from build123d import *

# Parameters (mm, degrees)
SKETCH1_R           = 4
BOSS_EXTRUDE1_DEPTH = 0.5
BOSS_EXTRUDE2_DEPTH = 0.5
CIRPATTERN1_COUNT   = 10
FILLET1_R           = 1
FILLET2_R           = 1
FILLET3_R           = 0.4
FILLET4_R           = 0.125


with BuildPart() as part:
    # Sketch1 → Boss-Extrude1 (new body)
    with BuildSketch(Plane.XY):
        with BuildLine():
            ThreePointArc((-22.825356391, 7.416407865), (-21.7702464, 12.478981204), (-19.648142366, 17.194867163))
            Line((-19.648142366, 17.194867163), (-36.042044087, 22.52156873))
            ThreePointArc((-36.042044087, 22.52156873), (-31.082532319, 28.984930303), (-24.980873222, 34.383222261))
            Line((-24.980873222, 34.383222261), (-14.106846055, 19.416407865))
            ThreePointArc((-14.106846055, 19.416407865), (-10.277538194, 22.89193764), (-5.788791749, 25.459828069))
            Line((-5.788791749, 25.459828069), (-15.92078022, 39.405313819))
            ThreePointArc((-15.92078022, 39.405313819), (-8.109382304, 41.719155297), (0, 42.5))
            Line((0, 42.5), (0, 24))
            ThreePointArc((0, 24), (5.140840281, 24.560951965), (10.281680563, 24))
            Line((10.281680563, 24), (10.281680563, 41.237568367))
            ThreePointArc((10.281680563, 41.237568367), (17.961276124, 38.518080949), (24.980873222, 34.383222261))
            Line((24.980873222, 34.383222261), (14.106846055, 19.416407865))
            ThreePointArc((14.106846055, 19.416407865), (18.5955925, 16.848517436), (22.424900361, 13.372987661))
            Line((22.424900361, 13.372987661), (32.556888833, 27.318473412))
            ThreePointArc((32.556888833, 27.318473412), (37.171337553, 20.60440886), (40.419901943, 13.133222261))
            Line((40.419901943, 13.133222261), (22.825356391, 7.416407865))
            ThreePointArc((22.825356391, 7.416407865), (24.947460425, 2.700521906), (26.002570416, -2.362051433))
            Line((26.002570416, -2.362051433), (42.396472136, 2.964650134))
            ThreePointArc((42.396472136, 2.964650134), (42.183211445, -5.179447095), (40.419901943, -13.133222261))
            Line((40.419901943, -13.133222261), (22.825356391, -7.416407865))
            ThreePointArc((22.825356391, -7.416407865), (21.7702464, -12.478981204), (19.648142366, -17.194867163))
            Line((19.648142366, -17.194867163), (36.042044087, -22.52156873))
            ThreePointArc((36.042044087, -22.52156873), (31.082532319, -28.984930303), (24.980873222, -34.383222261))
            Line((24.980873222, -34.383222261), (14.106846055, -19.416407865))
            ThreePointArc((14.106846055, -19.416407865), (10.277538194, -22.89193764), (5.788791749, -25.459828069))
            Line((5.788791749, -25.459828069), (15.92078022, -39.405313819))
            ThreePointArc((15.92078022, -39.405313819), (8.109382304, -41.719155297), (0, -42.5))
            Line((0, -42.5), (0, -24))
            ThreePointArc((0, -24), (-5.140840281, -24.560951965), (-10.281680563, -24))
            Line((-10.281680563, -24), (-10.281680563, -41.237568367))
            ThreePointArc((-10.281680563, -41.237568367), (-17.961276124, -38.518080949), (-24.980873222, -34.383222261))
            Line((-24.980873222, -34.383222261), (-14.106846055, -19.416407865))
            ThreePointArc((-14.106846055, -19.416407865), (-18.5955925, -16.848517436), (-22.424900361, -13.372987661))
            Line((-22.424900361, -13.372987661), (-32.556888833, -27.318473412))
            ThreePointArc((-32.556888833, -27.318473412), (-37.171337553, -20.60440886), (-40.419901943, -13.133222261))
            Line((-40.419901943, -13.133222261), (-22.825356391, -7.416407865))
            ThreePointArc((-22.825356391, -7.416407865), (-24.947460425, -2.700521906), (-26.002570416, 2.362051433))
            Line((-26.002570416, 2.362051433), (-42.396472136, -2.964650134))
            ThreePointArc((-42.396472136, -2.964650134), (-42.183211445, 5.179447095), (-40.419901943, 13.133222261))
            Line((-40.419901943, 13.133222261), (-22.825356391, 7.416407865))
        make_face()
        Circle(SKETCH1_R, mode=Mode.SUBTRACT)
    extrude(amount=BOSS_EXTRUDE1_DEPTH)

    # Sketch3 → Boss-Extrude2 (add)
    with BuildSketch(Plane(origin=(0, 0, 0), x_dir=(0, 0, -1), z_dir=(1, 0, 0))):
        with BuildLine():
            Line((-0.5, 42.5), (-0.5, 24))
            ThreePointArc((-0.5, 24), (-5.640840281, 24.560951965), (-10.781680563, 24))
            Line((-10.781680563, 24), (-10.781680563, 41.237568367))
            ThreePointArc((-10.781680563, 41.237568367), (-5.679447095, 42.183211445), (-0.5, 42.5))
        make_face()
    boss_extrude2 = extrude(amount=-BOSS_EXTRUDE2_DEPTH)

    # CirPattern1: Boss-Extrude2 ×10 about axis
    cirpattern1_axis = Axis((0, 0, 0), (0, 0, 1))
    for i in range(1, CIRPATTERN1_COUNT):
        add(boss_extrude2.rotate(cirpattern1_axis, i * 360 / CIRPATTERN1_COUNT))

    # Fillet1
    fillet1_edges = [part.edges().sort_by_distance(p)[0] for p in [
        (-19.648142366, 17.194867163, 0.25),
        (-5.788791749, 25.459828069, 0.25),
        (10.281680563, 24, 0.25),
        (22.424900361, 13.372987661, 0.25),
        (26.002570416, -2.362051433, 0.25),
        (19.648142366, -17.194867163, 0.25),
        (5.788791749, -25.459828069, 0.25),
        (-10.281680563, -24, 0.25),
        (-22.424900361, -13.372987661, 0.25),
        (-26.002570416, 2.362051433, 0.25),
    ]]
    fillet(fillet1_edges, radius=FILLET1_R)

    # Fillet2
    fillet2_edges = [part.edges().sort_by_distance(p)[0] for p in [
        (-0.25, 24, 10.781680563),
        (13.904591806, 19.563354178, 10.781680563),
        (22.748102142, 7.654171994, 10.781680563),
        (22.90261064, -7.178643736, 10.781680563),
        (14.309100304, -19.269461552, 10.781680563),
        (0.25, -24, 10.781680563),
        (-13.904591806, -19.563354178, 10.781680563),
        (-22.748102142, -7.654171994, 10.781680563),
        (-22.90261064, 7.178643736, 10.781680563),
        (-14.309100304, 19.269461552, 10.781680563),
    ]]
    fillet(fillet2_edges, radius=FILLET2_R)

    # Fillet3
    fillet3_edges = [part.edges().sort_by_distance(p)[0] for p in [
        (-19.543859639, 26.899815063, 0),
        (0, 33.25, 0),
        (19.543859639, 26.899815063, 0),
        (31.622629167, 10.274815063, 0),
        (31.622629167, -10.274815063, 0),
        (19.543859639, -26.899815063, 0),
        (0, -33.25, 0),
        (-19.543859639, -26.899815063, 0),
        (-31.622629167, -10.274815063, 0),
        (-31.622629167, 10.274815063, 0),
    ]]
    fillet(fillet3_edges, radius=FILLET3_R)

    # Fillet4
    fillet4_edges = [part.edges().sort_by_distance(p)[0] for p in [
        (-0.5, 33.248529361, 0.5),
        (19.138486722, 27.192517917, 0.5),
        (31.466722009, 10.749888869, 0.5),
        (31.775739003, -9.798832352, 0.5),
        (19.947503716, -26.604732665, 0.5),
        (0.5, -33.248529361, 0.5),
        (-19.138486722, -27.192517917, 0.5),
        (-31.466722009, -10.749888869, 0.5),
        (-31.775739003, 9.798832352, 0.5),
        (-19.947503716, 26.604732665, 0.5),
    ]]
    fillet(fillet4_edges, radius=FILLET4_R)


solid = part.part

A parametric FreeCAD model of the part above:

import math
import FreeCAD as App
import Part
import Sketcher
from FreeCAD import Vector
Q = App.Units.Quantity


def edges_at(feature, points):
    """Names of the edges that pass closest to the given points."""
    edges = feature.Shape.Edges
    near = lambda p: min(range(len(edges)), key=lambda i: edges[i].distToShape(Part.Vertex(*p))[0])
    return sorted({f"Edge{near(p) + 1}" for p in points})

doc = App.newDocument("Part")
body = doc.addObject("PartDesign::Body", "Body")

# Sketch on XY plane
sketch1 = body.newObject("Sketcher::SketchObject", "Sketch")
sketch1.AttachmentSupport = (doc.getObject("XY_Plane"), [""])
sketch1.MapMode = "FlatFace"
sketch1.addGeometry([
    Part.ArcOfCircle(Part.Circle(Vector(0.9, 5.1, 0), Vector(0, 0, 1), 23.8), math.radians(150), math.radians(174)),  # 0
    Part.LineSegment(Vector(-22.8, 7.4, 0), Vector(-40.4, 13.1, 0)),  # 1
    Part.ArcOfCircle(Part.Circle(Vector(0, 0, 0), Vector(0, 0, 1), 42.5), math.radians(162), math.radians(184)),  # 2
    Part.LineSegment(Vector(-42.4, -3, 0), Vector(-26, 2.4, 0)),  # 3
    Part.ArcOfCircle(Part.Circle(Vector(-2.3, 4.7, 0), Vector(0, 0, 1), 23.8), math.radians(-174), math.radians(-150)),  # 4
    Part.LineSegment(Vector(-22.8, -7.4, 0), Vector(-40.4, -13.1, 0)),  # 5
    Part.ArcOfCircle(Part.Circle(Vector(0, 0, 0), Vector(0, 0, 1), 42.5), math.radians(-162), math.radians(-140)),  # 6
    Part.LineSegment(Vector(-32.6, -27.3, 0), Vector(-22.4, -13.4, 0)),  # 7
    Part.ArcOfCircle(Part.Circle(Vector(-4.6, 2.4, 0), Vector(0, 0, 1), 23.8), math.radians(-138), math.radians(-114)),  # 8
    Part.LineSegment(Vector(-14.1, -19.4, 0), Vector(-25, -34.4, 0)),  # 9
    Part.ArcOfCircle(Part.Circle(Vector(0, 0, 0), Vector(0, 0, 1), 42.5), math.radians(-126), math.radians(-104)),  # 10
    Part.LineSegment(Vector(-10.3, -41.2, 0), Vector(-10.3, -24, 0)),  # 11
    Part.ArcOfCircle(Part.Circle(Vector(-5.1, -0.7, 0), Vector(0, 0, 1), 23.8), math.radians(-102), math.radians(-78)),  # 12
    Part.LineSegment(Vector(0, -24, 0), Vector(0, -42.5, 0)),  # 13
    Part.ArcOfCircle(Part.Circle(Vector(0, 0, 0), Vector(0, 0, 1), 42.5), math.radians(-90), math.radians(-68)),  # 14
    Part.LineSegment(Vector(15.9, -39.4, 0), Vector(5.8, -25.5, 0)),  # 15
    Part.ArcOfCircle(Part.Circle(Vector(-3.7, -3.6, 0), Vector(0, 0, 1), 23.8), math.radians(-66), math.radians(-42)),  # 16
    Part.LineSegment(Vector(14.1, -19.4, 0), Vector(25, -34.4, 0)),  # 17
    Part.ArcOfCircle(Part.Circle(Vector(0, 0, 0), Vector(0, 0, 1), 42.5), math.radians(-54), math.radians(-32)),  # 18
    Part.LineSegment(Vector(36, -22.5, 0), Vector(19.6, -17.2, 0)),  # 19
    Part.ArcOfCircle(Part.Circle(Vector(-0.9, -5.1, 0), Vector(0, 0, 1), 23.8), math.radians(-30), math.radians(-6)),  # 20
    Part.LineSegment(Vector(22.8, -7.4, 0), Vector(40.4, -13.1, 0)),  # 21
    Part.ArcOfCircle(Part.Circle(Vector(0, 0, 0), Vector(0, 0, 1), 42.5), math.radians(-18), math.radians(4)),  # 22
    Part.LineSegment(Vector(42.4, 3, 0), Vector(26, -2.4, 0)),  # 23
    Part.ArcOfCircle(Part.Circle(Vector(2.3, -4.7, 0), Vector(0, 0, 1), 23.8), math.radians(6), math.radians(30)),  # 24
    Part.LineSegment(Vector(22.8, 7.4, 0), Vector(40.4, 13.1, 0)),  # 25
    Part.ArcOfCircle(Part.Circle(Vector(0, 0, 0), Vector(0, 0, 1), 42.5), math.radians(18), math.radians(40)),  # 26
    Part.LineSegment(Vector(32.6, 27.3, 0), Vector(22.4, 13.4, 0)),  # 27
    Part.ArcOfCircle(Part.Circle(Vector(4.6, -2.4, 0), Vector(0, 0, 1), 23.8), math.radians(42), math.radians(66)),  # 28
    Part.LineSegment(Vector(14.1, 19.4, 0), Vector(25, 34.4, 0)),  # 29
    Part.ArcOfCircle(Part.Circle(Vector(0, 0, 0), Vector(0, 0, 1), 42.5), math.radians(54), math.radians(76)),  # 30
    Part.LineSegment(Vector(10.3, 41.2, 0), Vector(10.3, 24, 0)),  # 31
    Part.ArcOfCircle(Part.Circle(Vector(5.1, 0.7, 0), Vector(0, 0, 1), 23.8), math.radians(78), math.radians(102)),  # 32
    Part.LineSegment(Vector(0, 24, 0), Vector(0, 42.5, 0)),  # 33
    Part.ArcOfCircle(Part.Circle(Vector(0, 0, 0), Vector(0, 0, 1), 42.5), math.radians(90), math.radians(112)),  # 34
    Part.LineSegment(Vector(-15.9, 39.4, 0), Vector(-5.8, 25.5, 0)),  # 35
    Part.ArcOfCircle(Part.Circle(Vector(3.7, 3.6, 0), Vector(0, 0, 1), 23.8), math.radians(114), math.radians(138)),  # 36
    Part.LineSegment(Vector(-14.1, 19.4, 0), Vector(-25, 34.4, 0)),  # 37
    Part.ArcOfCircle(Part.Circle(Vector(0, 0, 0), Vector(0, 0, 1), 42.5), math.radians(126), math.radians(148)),  # 38
    Part.LineSegment(Vector(-36, 22.5, 0), Vector(-19.6, 17.2, 0)),  # 39
    Part.Circle(Vector(0, 0, 0), Vector(0, 0, 1), 4),  # 40
], False)
sketch1.addConstraint([
    Sketcher.Constraint("Coincident", 0, 2, 1, 1),
    Sketcher.Constraint("Coincident", 1, 2, 2, 1),
    Sketcher.Constraint("Coincident", 2, 2, 3, 1),
    Sketcher.Constraint("Coincident", 3, 2, 4, 1),
    Sketcher.Constraint("Coincident", 4, 2, 5, 1),
    Sketcher.Constraint("Coincident", 5, 2, 6, 1),
    Sketcher.Constraint("Coincident", 6, 2, 7, 1),
    Sketcher.Constraint("Coincident", 7, 2, 8, 1),
    Sketcher.Constraint("Coincident", 8, 2, 9, 1),
    Sketcher.Constraint("Coincident", 9, 2, 10, 1),
    Sketcher.Constraint("Coincident", 10, 2, 11, 1),
    Sketcher.Constraint("Coincident", 11, 2, 12, 1),
    Sketcher.Constraint("Coincident", 12, 2, 13, 1),
    Sketcher.Constraint("Coincident", 13, 2, 14, 1),
    Sketcher.Constraint("Coincident", 14, 2, 15, 1),
    Sketcher.Constraint("Coincident", 15, 2, 16, 1),
    Sketcher.Constraint("Coincident", 16, 2, 17, 1),
    Sketcher.Constraint("Coincident", 17, 2, 18, 1),
    Sketcher.Constraint("Coincident", 18, 2, 19, 1),
    Sketcher.Constraint("Coincident", 19, 2, 20, 1),
    Sketcher.Constraint("Coincident", 20, 2, 21, 1),
    Sketcher.Constraint("Coincident", 21, 2, 22, 1),
    Sketcher.Constraint("Coincident", 22, 2, 23, 1),
    Sketcher.Constraint("Coincident", 23, 2, 24, 1),
    Sketcher.Constraint("Coincident", 24, 2, 25, 1),
    Sketcher.Constraint("Coincident", 25, 2, 26, 1),
    Sketcher.Constraint("Coincident", 26, 2, 27, 1),
    Sketcher.Constraint("Coincident", 27, 2, 28, 1),
    Sketcher.Constraint("Coincident", 28, 2, 29, 1),
    Sketcher.Constraint("Coincident", 29, 2, 30, 1),
    Sketcher.Constraint("Coincident", 30, 2, 31, 1),
    Sketcher.Constraint("Coincident", 31, 2, 32, 1),
    Sketcher.Constraint("Coincident", 32, 2, 33, 1),
    Sketcher.Constraint("Coincident", 33, 2, 34, 1),
    Sketcher.Constraint("Coincident", 34, 2, 35, 1),
    Sketcher.Constraint("Coincident", 35, 2, 36, 1),
    Sketcher.Constraint("Coincident", 36, 2, 37, 1),
    Sketcher.Constraint("Coincident", 37, 2, 38, 1),
    Sketcher.Constraint("Coincident", 38, 2, 39, 1),
    Sketcher.Constraint("Coincident", 39, 2, 0, 1),
    Sketcher.Constraint("Vertical", 11),
    Sketcher.Constraint("Vertical", 13),
    Sketcher.Constraint("Vertical", 31),
    Sketcher.Constraint("Vertical", 33),
    Sketcher.Constraint("Coincident", 2, 3, -1, 1),
    Sketcher.Constraint("Coincident", 6, 3, -1, 1),
    Sketcher.Constraint("Coincident", 10, 3, -1, 1),
    Sketcher.Constraint("Coincident", 14, 3, -1, 1),
    Sketcher.Constraint("Coincident", 18, 3, -1, 1),
    Sketcher.Constraint("Coincident", 22, 3, -1, 1),
    Sketcher.Constraint("Coincident", 26, 3, -1, 1),
    Sketcher.Constraint("Coincident", 30, 3, -1, 1),
    Sketcher.Constraint("Coincident", 34, 3, -1, 1),
    Sketcher.Constraint("Coincident", 38, 3, -1, 1),
    Sketcher.Constraint("Coincident", 40, 3, -1, 1),
    Sketcher.Constraint("Equal", 0, 4),
    Sketcher.Constraint("Equal", 2, 6),
    Sketcher.Constraint("Equal", 4, 8),
    Sketcher.Constraint("Equal", 6, 10),
    Sketcher.Constraint("Equal", 8, 12),
    Sketcher.Constraint("Equal", 10, 14),
    Sketcher.Constraint("Equal", 12, 16),
    Sketcher.Constraint("Equal", 14, 18),
    Sketcher.Constraint("Equal", 16, 20),
    Sketcher.Constraint("Equal", 18, 22),
    Sketcher.Constraint("Equal", 20, 24),
    Sketcher.Constraint("Equal", 22, 26),
    Sketcher.Constraint("Equal", 24, 28),
    Sketcher.Constraint("Equal", 26, 30),
    Sketcher.Constraint("Equal", 28, 32),
    Sketcher.Constraint("Equal", 30, 34),
    Sketcher.Constraint("Equal", 32, 36),
    Sketcher.Constraint("Equal", 34, 38),
    Sketcher.Constraint("Symmetric", 0, 3, 20, 3, -1, 1),
    Sketcher.Constraint("Symmetric", 4, 3, 24, 3, -1, 1),
    Sketcher.Constraint("Symmetric", 8, 3, 28, 3, -1, 1),
    Sketcher.Constraint("Symmetric", 12, 3, 32, 3, -1, 1),
    Sketcher.Constraint("Symmetric", 16, 3, 36, 3, -1, 1),
    Sketcher.Constraint("Symmetric", 8, 2, 16, 2, -2),
    Sketcher.Constraint("Symmetric", 4, 2, 20, 2, -2),
    Sketcher.Constraint("Symmetric", 0, 2, 24, 2, -2),
    Sketcher.Constraint("Symmetric", 28, 2, 36, 2, -2),
    Sketcher.Constraint("Symmetric", 12, 2, 32, 2, -1),
    Sketcher.Constraint("Parallel", 3, 5),
    Sketcher.Constraint("Parallel", 7, 9),
    Sketcher.Constraint("Parallel", 15, 17),
    Sketcher.Constraint("Parallel", 1, 19),
    Sketcher.Constraint("Parallel", 19, 21),
    Sketcher.Constraint("Parallel", 5, 23),
    Sketcher.Constraint("Parallel", 23, 25),
    Sketcher.Constraint("Parallel", 9, 27),
    Sketcher.Constraint("Parallel", 27, 29),
    Sketcher.Constraint("Parallel", 17, 35),
    Sketcher.Constraint("Parallel", 35, 37),
    Sketcher.Constraint("Parallel", 21, 39),
    Sketcher.Constraint("Horizontal", 11, 2, 12, 2),
    Sketcher.Constraint("Horizontal", 9, 2, 17, 2),
    Sketcher.Constraint("Horizontal", 5, 2, 21, 2),
    Sketcher.Constraint("Horizontal", 31, 2, 32, 2),
    Sketcher.Constraint("Equal", 3, 7),
    Sketcher.Constraint("Equal", 5, 9),
    Sketcher.Constraint("Equal", 7, 15),
    Sketcher.Constraint("Equal", 15, 19),
    Sketcher.Constraint("Equal", 19, 23),
    Sketcher.Constraint("Equal", 23, 27),
    Sketcher.Constraint("Equal", 27, 35),
    Sketcher.Constraint("Equal", 35, 39),
    Sketcher.Constraint("Diameter", 40, Q("8 mm")),
    Sketcher.Constraint("Radius", 2, Q("42.5 mm")),
    Sketcher.Constraint("Angle", 1, Q("162 deg")),
    Sketcher.Constraint("Angle", 7, Q("54 deg")),
    Sketcher.Constraint("DistanceY", 13, 2, 13, 1, Q("18.5 mm")),
    Sketcher.Constraint("Distance", 1, Q("18.5 mm")),
    Sketcher.Constraint("Radius", 0, Q("23.837073 mm")),
    Sketcher.Constraint("DistanceY", 11, 1, 11, 2, Q("17.237568 mm")),
    Sketcher.Constraint("DistanceX", 1, 2, -1, 1, Q("40.419902 mm")),
    Sketcher.Constraint("DistanceX", 7, 2, -1, 1, Q("22.4249 mm")),
    Sketcher.Constraint("Distance", 3, Q("17.237568 mm")),
    Sketcher.Constraint("DistanceY", -1, 1, 0, 3, Q("5.112921 mm")),
    Sketcher.Constraint("DistanceY", -1, 1, 4, 3, Q("4.665539 mm")),
    Sketcher.Constraint("DistanceY", -1, 1, 8, 3, Q("2.43608 mm")),
    Sketcher.Constraint("DistanceX", 16, 3, -1, 1, Q("3.733542 mm")),
])
pad1 = body.newObject("PartDesign::Pad", "Pad")
pad1.Profile = sketch1
pad1.Length = 0.5

# Sketch on YZ plane
sketch2 = body.newObject("Sketcher::SketchObject", "Sketch001")
sketch2.AttachmentSupport = (doc.getObject("YZ_Plane"), [""])
sketch2.MapMode = "FlatFace"
sketch2.addGeometry([
    Part.LineSegment(Vector(24, 0, 0), Vector(42, 0, 0)),
    Part.ArcOfCircle(Part.Circle(Vector(0, 1, 0), Vector(0, 0, 1), 42), math.radians(0), math.radians(14)),
    Part.LineSegment(Vector(41, 11, 0), Vector(24, 11, 0)),
    Part.ArcOfCircle(Part.Circle(Vector(1, 6, 0), Vector(0, 0, 1), 24), math.radians(-12), math.radians(12)),
], False)
sketch2.addConstraint([
    Sketcher.Constraint("Coincident", 0, 2, 1, 1),
    Sketcher.Constraint("Coincident", 1, 2, 2, 1),
    Sketcher.Constraint("Coincident", 2, 2, 3, 2),
    Sketcher.Constraint("Coincident", 3, 1, 0, 1),
    Sketcher.Constraint("Horizontal", 0),
    Sketcher.Constraint("Horizontal", 2),
    Sketcher.Constraint("PointOnObject", 1, 3, -2),
    Sketcher.Constraint("Horizontal", 1, 3, 0, 2),
    Sketcher.Constraint("Vertical", 2, 2, 3, 1),
    Sketcher.Constraint("Radius", 1, Q("42.5 mm")),
    Sketcher.Constraint("DistanceX", 0, 1, 0, 2, Q("18.5 mm")),
    Sketcher.Constraint("DistanceY", -1, 1, 1, 3, Q("0.5 mm")),
    Sketcher.Constraint("Radius", 3, Q("23.837073 mm")),
    Sketcher.Constraint("DistanceX", 2, 2, 2, 1, Q("17.237568 mm")),
])
pad2 = body.newObject("PartDesign::Pad", "Pad001")
pad2.Profile = sketch2
pad2.Length = 0.5
pad2.Reversed = True
doc.recompute()

polarpattern = body.newObject("PartDesign::PolarPattern", "PolarPattern")
polarpattern.Originals = [pad2]
polarpattern.Axis = (doc.getObject("Z_Axis"), [""])
polarpattern.Angle = 360
polarpattern.Occurrences = 10
body.Tip = polarpattern
doc.recompute()

fillet = body.newObject("PartDesign::Fillet", "Fillet")
fillet.Base = (polarpattern, edges_at(polarpattern, [
    (-19.648, 17.195, 0.25),
    (-5.789, 25.46, 0.25),
    (10.282, 24, 0.25),
    (22.425, 13.373, 0.25),
    (26.003, -2.362, 0.25),
    (19.648, -17.195, 0.25),
    (5.789, -25.46, 0.25),
    (-10.282, -24, 0.25),
    (-22.425, -13.373, 0.25),
    (-26.003, 2.362, 0.25),
]))
fillet.Radius = 1
doc.recompute()

fillet2 = body.newObject("PartDesign::Fillet", "Fillet001")
fillet2.Base = (fillet, edges_at(fillet, [
    (-0.25, 24, 10.782),
    (13.905, 19.563, 10.782),
    (22.748, 7.654, 10.782),
    (22.903, -7.179, 10.782),
    (14.309, -19.269, 10.782),
    (0.25, -24, 10.782),
    (-13.905, -19.563, 10.782),
    (-22.748, -7.654, 10.782),
    (-22.903, 7.179, 10.782),
    (-14.309, 19.269, 10.782),
]))
fillet2.Radius = 1
doc.recompute()

fillet3 = body.newObject("PartDesign::Fillet", "Fillet002")
fillet3.Base = (fillet2, edges_at(fillet2, [
    (-19.544, 26.9, 0),
    (0, 33.25, 0),
    (19.544, 26.9, 0),
    (31.623, 10.275, 0),
    (31.623, -10.275, 0),
    (19.544, -26.9, 0),
    (0, -33.25, 0),
    (-19.544, -26.9, 0),
    (-31.623, -10.275, 0),
    (-31.623, 10.275, 0),
]))
fillet3.Radius = 0.4
doc.recompute()

fillet4 = body.newObject("PartDesign::Fillet", "Fillet003")
fillet4.Base = (fillet3, edges_at(fillet3, [
    (-0.5, 33.249, 0.5),
    (19.138, 27.193, 0.5),
    (31.467, 10.75, 0.5),
    (31.776, -9.799, 0.5),
    (19.948, -26.605, 0.5),
    (0.5, -33.249, 0.5),
    (-19.138, -27.193, 0.5),
    (-31.467, -10.75, 0.5),
    (-31.776, 9.799, 0.5),
    (-19.948, 26.605, 0.5),
]))
fillet4.Radius = 0.125

doc.recompute()
